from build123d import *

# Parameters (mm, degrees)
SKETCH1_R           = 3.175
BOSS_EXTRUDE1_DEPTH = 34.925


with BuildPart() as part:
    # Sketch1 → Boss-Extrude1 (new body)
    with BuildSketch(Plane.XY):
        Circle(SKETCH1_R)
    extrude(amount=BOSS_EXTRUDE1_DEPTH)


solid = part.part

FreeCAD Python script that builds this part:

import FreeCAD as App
import Part
import Sketcher

V = App.Vector
Q = App.Units.Quantity

doc = App.newDocument("Part")
body = doc.addObject("PartDesign::Body", "Body")

# Sketch on XY plane
sketch1 = body.newObject("Sketcher::SketchObject", "Sketch")
sketch1.AttachmentSupport = (doc.getObject("XY_Plane"), [""])
sketch1.MapMode = "FlatFace"
sketch1.addGeometry(Part.Circle(V(0, 0, 0), V(0, 0, 1), 3.2), False)
sketch1.addConstraint(Sketcher.Constraint("Coincident", 0, 3, -1, 1))
sketch1.addConstraint(Sketcher.Constraint("Diameter", 0, Q("0.25 in")))
pad1 = body.newObject("PartDesign::Pad", "Pad")
pad1.Profile = sketch1
pad1.Length = Q("1.375 in")

doc.recompute()
